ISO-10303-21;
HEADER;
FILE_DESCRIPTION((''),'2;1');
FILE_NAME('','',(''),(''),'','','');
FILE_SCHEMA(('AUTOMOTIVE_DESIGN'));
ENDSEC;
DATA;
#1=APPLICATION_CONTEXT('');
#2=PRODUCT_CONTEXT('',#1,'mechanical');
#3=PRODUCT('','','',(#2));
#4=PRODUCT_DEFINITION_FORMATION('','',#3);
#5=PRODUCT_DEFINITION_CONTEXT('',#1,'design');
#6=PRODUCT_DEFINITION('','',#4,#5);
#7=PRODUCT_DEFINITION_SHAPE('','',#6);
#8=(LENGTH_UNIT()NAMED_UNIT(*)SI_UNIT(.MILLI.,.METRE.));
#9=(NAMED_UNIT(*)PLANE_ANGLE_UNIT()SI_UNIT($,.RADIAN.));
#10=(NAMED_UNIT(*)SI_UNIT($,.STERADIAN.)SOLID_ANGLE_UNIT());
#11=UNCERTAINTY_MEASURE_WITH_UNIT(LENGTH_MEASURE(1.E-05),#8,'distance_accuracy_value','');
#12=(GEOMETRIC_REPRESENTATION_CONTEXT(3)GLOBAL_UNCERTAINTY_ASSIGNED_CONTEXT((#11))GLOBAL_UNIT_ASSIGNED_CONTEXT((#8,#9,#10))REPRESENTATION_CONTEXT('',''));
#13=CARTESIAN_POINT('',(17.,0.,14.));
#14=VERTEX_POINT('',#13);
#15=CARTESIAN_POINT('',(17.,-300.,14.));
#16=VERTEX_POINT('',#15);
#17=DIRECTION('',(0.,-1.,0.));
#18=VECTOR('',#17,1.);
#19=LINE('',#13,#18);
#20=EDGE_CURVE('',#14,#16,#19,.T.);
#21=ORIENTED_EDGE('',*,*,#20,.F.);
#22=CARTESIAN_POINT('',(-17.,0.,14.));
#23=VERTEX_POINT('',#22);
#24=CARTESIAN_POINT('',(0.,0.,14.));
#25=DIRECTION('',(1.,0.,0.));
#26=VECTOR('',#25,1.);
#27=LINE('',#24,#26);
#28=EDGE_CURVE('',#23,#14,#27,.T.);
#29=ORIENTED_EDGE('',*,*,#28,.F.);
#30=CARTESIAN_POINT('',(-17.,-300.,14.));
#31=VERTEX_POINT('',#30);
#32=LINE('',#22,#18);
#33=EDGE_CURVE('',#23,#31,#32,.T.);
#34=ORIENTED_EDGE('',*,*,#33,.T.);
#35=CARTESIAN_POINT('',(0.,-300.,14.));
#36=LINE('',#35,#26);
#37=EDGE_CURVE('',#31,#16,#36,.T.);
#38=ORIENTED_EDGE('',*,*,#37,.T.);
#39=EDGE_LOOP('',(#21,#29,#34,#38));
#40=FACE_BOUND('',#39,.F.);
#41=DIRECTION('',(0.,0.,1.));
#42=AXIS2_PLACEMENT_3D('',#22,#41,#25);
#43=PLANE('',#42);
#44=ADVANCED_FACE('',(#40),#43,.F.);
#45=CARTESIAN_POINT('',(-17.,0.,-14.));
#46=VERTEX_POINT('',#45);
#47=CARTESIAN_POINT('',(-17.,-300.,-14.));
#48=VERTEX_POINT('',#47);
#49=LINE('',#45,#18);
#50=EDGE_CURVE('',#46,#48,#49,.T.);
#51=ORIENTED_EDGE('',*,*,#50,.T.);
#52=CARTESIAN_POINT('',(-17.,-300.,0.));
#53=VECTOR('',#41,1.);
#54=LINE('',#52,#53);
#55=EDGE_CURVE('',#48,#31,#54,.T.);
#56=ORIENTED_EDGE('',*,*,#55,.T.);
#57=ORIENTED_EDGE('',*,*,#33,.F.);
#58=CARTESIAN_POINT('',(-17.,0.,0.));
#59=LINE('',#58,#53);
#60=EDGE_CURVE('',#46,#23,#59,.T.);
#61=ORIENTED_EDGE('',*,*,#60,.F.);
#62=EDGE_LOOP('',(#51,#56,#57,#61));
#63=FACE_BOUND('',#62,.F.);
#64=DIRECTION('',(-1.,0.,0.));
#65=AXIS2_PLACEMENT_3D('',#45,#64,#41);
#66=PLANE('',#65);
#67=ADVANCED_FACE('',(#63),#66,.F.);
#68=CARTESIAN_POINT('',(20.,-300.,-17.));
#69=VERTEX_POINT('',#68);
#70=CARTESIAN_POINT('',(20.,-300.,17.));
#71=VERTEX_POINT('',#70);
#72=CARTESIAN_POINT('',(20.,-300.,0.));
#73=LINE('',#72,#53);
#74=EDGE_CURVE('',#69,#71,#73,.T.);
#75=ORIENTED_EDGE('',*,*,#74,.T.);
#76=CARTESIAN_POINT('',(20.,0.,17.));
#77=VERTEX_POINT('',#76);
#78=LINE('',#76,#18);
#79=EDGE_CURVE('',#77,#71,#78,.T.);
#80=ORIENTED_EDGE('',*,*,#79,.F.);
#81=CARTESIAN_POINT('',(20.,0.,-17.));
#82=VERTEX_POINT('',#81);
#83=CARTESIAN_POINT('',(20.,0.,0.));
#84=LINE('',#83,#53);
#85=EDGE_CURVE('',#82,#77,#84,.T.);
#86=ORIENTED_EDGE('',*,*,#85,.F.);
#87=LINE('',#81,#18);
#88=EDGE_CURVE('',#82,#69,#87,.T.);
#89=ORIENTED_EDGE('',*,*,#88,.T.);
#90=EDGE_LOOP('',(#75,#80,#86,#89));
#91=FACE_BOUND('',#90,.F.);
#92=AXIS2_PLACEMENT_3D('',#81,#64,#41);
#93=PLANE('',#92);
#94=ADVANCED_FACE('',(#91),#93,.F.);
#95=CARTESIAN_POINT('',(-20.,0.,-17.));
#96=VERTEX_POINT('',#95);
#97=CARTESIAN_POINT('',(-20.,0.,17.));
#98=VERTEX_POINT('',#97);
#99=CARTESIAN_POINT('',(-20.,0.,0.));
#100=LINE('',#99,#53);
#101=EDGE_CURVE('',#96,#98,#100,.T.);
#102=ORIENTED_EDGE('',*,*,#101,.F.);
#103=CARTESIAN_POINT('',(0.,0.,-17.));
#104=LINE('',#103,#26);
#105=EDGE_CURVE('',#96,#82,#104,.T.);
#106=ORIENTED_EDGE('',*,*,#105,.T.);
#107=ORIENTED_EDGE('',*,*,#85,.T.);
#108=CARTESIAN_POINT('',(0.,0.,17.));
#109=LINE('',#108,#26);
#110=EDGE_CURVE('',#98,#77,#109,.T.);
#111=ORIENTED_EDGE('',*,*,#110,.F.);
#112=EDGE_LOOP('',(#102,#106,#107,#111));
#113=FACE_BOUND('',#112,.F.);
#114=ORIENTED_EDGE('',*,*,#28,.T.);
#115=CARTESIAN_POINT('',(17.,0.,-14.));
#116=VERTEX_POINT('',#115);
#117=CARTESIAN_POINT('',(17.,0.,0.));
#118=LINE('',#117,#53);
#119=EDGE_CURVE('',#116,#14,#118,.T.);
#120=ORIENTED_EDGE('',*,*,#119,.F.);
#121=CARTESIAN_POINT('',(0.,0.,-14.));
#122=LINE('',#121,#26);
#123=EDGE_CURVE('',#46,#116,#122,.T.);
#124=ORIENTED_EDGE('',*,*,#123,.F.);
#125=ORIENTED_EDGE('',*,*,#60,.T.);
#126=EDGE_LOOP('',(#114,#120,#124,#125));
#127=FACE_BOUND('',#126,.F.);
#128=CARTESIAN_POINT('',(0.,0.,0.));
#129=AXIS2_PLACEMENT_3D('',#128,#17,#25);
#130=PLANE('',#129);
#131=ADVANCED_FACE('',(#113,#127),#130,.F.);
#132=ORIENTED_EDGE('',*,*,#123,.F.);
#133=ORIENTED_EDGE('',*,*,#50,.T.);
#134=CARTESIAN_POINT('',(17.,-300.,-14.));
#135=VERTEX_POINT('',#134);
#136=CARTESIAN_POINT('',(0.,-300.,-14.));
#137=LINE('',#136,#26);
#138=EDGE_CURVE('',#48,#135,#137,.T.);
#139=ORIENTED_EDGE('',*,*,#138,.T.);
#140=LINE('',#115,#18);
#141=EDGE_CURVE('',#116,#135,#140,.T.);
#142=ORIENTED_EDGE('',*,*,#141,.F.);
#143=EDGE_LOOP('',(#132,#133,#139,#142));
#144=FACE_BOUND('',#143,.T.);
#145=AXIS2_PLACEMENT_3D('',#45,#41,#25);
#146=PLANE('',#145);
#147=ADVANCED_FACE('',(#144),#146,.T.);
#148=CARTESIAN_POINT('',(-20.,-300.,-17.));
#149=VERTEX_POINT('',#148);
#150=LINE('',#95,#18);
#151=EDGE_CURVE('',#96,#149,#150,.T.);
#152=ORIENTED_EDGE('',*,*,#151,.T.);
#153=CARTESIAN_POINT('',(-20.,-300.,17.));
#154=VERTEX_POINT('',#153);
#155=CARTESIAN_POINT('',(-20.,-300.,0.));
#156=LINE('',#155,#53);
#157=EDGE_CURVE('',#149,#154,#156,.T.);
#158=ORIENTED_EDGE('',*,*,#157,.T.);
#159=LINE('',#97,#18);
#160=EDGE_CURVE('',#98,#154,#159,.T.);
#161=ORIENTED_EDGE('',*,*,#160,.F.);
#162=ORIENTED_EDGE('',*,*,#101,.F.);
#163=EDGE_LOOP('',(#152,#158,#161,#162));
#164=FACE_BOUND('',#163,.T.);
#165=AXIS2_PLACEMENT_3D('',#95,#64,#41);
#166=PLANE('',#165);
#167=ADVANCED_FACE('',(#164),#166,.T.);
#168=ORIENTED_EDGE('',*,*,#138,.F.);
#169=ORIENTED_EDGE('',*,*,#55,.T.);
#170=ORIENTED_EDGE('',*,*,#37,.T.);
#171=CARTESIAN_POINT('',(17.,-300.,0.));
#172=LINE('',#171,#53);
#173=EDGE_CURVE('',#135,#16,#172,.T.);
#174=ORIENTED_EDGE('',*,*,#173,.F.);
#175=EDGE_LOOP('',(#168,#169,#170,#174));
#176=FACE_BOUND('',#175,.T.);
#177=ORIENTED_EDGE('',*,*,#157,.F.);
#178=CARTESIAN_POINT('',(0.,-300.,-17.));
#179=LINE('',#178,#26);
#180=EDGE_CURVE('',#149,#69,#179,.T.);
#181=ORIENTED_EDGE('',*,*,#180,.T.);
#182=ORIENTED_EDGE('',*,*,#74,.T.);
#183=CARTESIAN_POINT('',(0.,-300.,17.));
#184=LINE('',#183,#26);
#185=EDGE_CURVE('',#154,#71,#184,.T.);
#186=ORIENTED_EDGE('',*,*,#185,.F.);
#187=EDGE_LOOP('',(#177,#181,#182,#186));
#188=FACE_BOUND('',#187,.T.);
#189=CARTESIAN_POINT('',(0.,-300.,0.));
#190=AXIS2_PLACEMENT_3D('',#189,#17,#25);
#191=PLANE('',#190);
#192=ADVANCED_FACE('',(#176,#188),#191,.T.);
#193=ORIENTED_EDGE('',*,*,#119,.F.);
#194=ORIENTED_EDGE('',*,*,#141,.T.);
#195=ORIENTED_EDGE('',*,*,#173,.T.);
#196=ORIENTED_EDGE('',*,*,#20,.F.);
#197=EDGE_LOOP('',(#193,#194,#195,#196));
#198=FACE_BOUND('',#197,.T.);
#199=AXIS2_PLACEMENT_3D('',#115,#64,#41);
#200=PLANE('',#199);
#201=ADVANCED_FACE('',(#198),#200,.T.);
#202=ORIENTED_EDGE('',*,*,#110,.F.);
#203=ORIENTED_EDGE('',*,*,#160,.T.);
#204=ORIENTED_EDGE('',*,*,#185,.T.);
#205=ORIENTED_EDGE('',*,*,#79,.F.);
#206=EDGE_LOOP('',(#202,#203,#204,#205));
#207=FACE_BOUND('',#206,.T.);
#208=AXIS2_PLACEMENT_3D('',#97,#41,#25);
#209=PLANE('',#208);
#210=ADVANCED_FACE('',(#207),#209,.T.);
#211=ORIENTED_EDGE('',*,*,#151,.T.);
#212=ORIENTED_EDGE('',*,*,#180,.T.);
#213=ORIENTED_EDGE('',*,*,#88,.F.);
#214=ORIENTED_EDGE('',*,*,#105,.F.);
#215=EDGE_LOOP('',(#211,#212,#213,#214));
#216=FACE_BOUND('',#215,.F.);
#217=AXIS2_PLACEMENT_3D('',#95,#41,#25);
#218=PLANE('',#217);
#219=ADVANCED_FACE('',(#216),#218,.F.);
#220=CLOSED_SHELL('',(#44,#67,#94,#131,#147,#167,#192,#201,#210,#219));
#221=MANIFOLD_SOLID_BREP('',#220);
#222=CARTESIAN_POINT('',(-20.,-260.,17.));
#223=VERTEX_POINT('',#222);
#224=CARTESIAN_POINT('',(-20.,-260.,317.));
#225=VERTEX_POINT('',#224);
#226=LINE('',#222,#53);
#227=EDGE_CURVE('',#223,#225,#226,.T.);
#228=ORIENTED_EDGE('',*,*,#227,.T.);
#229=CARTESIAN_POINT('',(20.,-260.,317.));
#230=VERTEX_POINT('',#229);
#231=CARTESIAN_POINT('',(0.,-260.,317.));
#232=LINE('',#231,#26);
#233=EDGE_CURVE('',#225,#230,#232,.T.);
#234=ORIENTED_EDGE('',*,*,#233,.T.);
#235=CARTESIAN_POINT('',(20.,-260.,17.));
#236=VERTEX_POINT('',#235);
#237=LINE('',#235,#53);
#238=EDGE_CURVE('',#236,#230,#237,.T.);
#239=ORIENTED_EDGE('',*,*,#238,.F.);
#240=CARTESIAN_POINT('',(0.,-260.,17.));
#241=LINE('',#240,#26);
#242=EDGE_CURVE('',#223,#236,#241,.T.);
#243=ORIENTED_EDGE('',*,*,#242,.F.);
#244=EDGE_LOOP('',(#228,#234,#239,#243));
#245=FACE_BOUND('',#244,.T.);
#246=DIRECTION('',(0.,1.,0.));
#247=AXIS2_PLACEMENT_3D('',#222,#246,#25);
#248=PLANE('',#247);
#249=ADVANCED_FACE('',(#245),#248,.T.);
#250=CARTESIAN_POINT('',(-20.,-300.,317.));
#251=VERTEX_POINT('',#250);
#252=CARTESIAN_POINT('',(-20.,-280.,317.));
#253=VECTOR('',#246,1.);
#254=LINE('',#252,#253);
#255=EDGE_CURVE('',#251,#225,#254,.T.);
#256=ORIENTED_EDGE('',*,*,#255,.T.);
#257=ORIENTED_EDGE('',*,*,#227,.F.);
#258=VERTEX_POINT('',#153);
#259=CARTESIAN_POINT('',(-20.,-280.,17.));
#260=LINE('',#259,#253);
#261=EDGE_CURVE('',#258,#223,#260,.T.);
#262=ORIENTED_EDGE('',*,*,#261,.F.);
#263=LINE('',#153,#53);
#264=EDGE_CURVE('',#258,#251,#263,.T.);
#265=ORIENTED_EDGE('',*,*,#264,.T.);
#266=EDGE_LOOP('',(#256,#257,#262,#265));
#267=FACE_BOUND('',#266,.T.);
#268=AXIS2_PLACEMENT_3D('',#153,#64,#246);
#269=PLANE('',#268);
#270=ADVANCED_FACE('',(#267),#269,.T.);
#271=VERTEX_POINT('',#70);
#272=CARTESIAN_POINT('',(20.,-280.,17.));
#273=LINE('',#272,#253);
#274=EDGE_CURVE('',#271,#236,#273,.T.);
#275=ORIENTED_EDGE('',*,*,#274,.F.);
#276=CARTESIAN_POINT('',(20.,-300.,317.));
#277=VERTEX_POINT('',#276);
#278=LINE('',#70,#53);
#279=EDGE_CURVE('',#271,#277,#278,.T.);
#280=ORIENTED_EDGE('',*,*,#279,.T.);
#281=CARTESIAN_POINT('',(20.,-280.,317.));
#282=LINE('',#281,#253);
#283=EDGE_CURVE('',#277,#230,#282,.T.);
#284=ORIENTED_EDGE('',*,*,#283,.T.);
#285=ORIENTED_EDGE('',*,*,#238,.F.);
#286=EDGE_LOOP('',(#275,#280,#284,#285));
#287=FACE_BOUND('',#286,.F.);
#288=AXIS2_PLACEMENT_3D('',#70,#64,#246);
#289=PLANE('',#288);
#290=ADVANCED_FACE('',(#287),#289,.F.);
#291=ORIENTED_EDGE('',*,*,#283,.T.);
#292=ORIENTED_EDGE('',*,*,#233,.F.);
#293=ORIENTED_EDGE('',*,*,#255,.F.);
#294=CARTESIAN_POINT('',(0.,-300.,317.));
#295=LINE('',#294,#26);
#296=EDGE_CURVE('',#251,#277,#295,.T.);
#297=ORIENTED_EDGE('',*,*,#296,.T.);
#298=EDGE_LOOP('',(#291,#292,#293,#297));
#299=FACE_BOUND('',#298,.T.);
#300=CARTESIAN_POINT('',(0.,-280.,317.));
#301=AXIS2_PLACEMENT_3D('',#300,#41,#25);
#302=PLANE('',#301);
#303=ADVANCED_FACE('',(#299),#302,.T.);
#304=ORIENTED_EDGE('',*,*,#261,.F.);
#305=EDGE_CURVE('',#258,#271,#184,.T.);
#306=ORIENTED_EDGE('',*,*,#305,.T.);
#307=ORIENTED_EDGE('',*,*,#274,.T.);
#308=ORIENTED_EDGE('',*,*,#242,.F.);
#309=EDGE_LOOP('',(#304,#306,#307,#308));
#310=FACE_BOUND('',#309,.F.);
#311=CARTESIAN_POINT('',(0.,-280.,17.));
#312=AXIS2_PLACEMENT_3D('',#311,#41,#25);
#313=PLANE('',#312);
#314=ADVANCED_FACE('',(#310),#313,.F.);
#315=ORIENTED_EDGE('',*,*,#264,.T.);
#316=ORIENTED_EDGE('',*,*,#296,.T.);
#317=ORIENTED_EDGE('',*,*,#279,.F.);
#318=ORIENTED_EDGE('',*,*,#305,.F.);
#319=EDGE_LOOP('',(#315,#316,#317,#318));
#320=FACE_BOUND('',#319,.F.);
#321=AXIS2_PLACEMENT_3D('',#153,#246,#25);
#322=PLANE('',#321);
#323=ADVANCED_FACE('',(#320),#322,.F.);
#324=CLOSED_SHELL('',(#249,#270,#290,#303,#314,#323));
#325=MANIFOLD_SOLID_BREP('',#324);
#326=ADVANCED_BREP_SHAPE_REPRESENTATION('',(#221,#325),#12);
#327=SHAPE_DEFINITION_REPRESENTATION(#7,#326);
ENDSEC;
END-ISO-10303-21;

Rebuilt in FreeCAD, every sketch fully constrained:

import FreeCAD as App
import Part
import Sketcher
Q = App.Units.Quantity

doc = App.newDocument("Part")
body = doc.addObject("PartDesign::Body", "Body")

# Sketch on XZ plane
sketch1 = body.newObject("Sketcher::SketchObject", "Sketch")
sketch1.AttachmentSupport = (doc.getObject("XZ_Plane"), [""])
sketch1.MapMode = "FlatFace"
sketch1.addGeometry(Part.LineSegment(App.Vector(-20, 17, 0), App.Vector(-20, -17, 0)), False)
sketch1.addGeometry(Part.LineSegment(App.Vector(-20, -17, 0), App.Vector(20, -17, 0)), False)
sketch1.addGeometry(Part.LineSegment(App.Vector(20, -17, 0), App.Vector(20, 17, 0)), False)
sketch1.addGeometry(Part.LineSegment(App.Vector(20, 17, 0), App.Vector(-20, 17, 0)), False)
sketch1.addGeometry(Part.LineSegment(App.Vector(17, -14, 0), App.Vector(-17, -14, 0)), False)
sketch1.addGeometry(Part.LineSegment(App.Vector(-17, -14, 0), App.Vector(-17, 14, 0)), False)
sketch1.addGeometry(Part.LineSegment(App.Vector(-17, 14, 0), App.Vector(17, 14, 0)), False)
sketch1.addGeometry(Part.LineSegment(App.Vector(17, 14, 0), App.Vector(17, -14, 0)), False)
sketch1.addConstraint(Sketcher.Constraint("Coincident", 0, 2, 1, 1))
sketch1.addConstraint(Sketcher.Constraint("Coincident", 1, 2, 2, 1))
sketch1.addConstraint(Sketcher.Constraint("Coincident", 2, 2, 3, 1))
sketch1.addConstraint(Sketcher.Constraint("Coincident", 3, 2, 0, 1))
sketch1.addConstraint(Sketcher.Constraint("Coincident", 4, 2, 5, 1))
sketch1.addConstraint(Sketcher.Constraint("Coincident", 5, 2, 6, 1))
sketch1.addConstraint(Sketcher.Constraint("Coincident", 6, 2, 7, 1))
sketch1.addConstraint(Sketcher.Constraint("Coincident", 7, 2, 4, 1))
sketch1.addConstraint(Sketcher.Constraint("Vertical", 0))
sketch1.addConstraint(Sketcher.Constraint("Horizontal", 1))
sketch1.addConstraint(Sketcher.Constraint("Vertical", 2))
sketch1.addConstraint(Sketcher.Constraint("Horizontal", 3))
sketch1.addConstraint(Sketcher.Constraint("Horizontal", 4))
sketch1.addConstraint(Sketcher.Constraint("Vertical", 5))
sketch1.addConstraint(Sketcher.Constraint("Horizontal", 6))
sketch1.addConstraint(Sketcher.Constraint("Vertical", 7))
sketch1.addConstraint(Sketcher.Constraint("Symmetric", 0, 2, 2, 2, -1, 1))
sketch1.addConstraint(Sketcher.Constraint("Symmetric", 4, 2, 6, 2, -1, 1))
sketch1.addConstraint(Sketcher.Constraint("Equal", 6, 0))
sketch1.addConstraint(Sketcher.Constraint("DistanceX", 1, 1, 1, 2, Q("40 mm")))
sketch1.addConstraint(Sketcher.Constraint("DistanceX", 4, 2, 4, 1, Q("34 mm")))
sketch1.addConstraint(Sketcher.Constraint("DistanceY", 5, 1, 5, 2, Q("28 mm")))
pad1 = body.newObject("PartDesign::Pad", "Pad")
pad1.Profile = sketch1
pad1.Length = 300
body2 = doc.addObject("PartDesign::Body", "Body001")

# Sketch on XY plane
sketch2 = body2.newObject("Sketcher::SketchObject", "Sketch001")
sketch2.AttachmentSupport = (doc.getObject("XY_Plane001"), [""])
sketch2.MapMode = "FlatFace"
sketch2.AttachmentOffset = App.Placement(App.Vector(0, 0, 17), App.Rotation())
sketch2.addGeometry(Part.LineSegment(App.Vector(-20, -260, 0), App.Vector(-20, -300, 0)), False)
sketch2.addGeometry(Part.LineSegment(App.Vector(-20, -300, 0), App.Vector(20, -300, 0)), False)
sketch2.addGeometry(Part.LineSegment(App.Vector(20, -300, 0), App.Vector(20, -260, 0)), False)
sketch2.addGeometry(Part.LineSegment(App.Vector(20, -260, 0), App.Vector(-20, -260, 0)), False)
sketch2.addConstraint(Sketcher.Constraint("Coincident", 0, 2, 1, 1))
sketch2.addConstraint(Sketcher.Constraint("Coincident", 1, 2, 2, 1))
sketch2.addConstraint(Sketcher.Constraint("Coincident", 2, 2, 3, 1))
sketch2.addConstraint(Sketcher.Constraint("Coincident", 3, 2, 0, 1))
sketch2.addConstraint(Sketcher.Constraint("Vertical", 0))
sketch2.addConstraint(Sketcher.Constraint("Horizontal", 1))
sketch2.addConstraint(Sketcher.Constraint("Vertical", 2))
sketch2.addConstraint(Sketcher.Constraint("Horizontal", 3))
sketch2.addConstraint(Sketcher.Constraint("Equal", 3, 0))
sketch2.addConstraint(Sketcher.Constraint("DistanceX", 1, 1, 1, 2, Q("40 mm")))
sketch2.addConstraint(Sketcher.Constraint("DistanceX", 0, 2, -1, 1, Q("20 mm")))
sketch2.addConstraint(Sketcher.Constraint("DistanceY", 0, 2, -1, 1, Q("300 mm")))
pad2 = body2.newObject("PartDesign::Pad", "Pad001")
pad2.Profile = sketch2
pad2.Length = 300

doc.recompute()
